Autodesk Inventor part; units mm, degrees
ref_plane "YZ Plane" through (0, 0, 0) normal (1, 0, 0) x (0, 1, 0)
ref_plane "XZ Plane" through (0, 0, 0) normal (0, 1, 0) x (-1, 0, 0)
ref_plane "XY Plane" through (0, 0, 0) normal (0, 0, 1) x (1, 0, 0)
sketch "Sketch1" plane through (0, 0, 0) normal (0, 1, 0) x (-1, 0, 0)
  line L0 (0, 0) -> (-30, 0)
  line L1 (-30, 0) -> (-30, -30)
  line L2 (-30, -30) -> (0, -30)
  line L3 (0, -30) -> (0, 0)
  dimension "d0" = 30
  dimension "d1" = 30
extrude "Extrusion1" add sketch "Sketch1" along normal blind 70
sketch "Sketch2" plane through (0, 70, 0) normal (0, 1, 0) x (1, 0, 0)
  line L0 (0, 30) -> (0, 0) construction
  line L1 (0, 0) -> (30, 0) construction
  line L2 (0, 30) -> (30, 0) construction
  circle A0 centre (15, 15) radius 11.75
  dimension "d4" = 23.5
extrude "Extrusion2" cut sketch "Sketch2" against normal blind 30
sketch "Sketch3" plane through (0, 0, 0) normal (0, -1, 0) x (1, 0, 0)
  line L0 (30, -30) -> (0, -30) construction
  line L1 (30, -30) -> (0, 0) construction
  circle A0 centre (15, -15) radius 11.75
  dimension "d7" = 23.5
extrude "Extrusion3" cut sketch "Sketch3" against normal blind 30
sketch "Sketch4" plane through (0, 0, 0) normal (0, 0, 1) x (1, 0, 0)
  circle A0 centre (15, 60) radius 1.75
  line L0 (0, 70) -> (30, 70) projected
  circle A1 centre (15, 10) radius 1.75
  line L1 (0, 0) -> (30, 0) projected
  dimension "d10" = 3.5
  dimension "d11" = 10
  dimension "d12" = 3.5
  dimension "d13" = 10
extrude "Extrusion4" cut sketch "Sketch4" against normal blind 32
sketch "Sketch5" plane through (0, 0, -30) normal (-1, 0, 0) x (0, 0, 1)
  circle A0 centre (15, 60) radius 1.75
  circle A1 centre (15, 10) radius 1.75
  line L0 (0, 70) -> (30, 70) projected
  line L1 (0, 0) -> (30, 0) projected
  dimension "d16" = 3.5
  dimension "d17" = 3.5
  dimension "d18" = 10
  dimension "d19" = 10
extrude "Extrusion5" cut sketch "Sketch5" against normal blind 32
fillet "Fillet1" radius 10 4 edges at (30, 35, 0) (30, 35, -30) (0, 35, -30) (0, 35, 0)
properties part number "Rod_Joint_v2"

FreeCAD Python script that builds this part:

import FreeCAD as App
import Part
import Sketcher
Q = App.Units.Quantity


def edges_at(feature, points):
    """Names of the edges that pass closest to the given points."""
    edges = feature.Shape.Edges
    near = lambda p: min(range(len(edges)), key=lambda i: edges[i].distToShape(Part.Vertex(*p))[0])
    return sorted({f"Edge{near(p) + 1}" for p in points})

doc = App.newDocument("Part")
body = doc.addObject("PartDesign::Body", "Body")

sketch1 = body.newObject("Sketcher::SketchObject", "Sketch")
sketch1.AttachmentSupport = (doc.getObject("XZ_Plane"), [""])
sketch1.MapMode = "FlatFace"
sketch1.addGeometry(Part.LineSegment(App.Vector(0, -30, 0), App.Vector(0, 0, 0)), False)
sketch1.addGeometry(Part.LineSegment(App.Vector(0, 0, 0), App.Vector(30, 0, 0)), False)
sketch1.addGeometry(Part.LineSegment(App.Vector(30, 0, 0), App.Vector(30, -30, 0)), False)
sketch1.addGeometry(Part.LineSegment(App.Vector(30, -30, 0), App.Vector(0, -30, 0)), False)
sketch1.addConstraint(Sketcher.Constraint("Coincident", 0, 2, 1, 1))
sketch1.addConstraint(Sketcher.Constraint("Coincident", 1, 2, 2, 1))
sketch1.addConstraint(Sketcher.Constraint("Coincident", 2, 2, 3, 1))
sketch1.addConstraint(Sketcher.Constraint("Coincident", 3, 2, 0, 1))
sketch1.addConstraint(Sketcher.Constraint("Vertical", 0))
sketch1.addConstraint(Sketcher.Constraint("Horizontal", 1))
sketch1.addConstraint(Sketcher.Constraint("Vertical", 2))
sketch1.addConstraint(Sketcher.Constraint("Horizontal", 3))
sketch1.addConstraint(Sketcher.Constraint("Coincident", 0, 2, -1, 1))
sketch1.addConstraint(Sketcher.Constraint("Equal", 3, 0))
sketch1.addConstraint(Sketcher.Constraint("DistanceX", 1, 1, 1, 2, Q("30 mm")))
pad1 = body.newObject("PartDesign::Pad", "Pad")
pad1.Profile = sketch1
pad1.Length = 70
pad1.Reversed = True

sketch2 = body.newObject("Sketcher::SketchObject", "Sketch001")
sketch2.AttachmentSupport = (doc.getObject("XZ_Plane"), [""])
sketch2.MapMode = "FlatFace"
sketch2.AttachmentOffset = App.Placement(App.Vector(0, 0, -70), App.Rotation())
sketch2.addGeometry(Part.Circle(App.Vector(15, -15, 0), App.Vector(0, 0, 1), 12), False)
sketch2.addConstraint(Sketcher.Constraint("Diameter", 0, Q("23.5 mm")))
sketch2.addConstraint(Sketcher.Constraint("DistanceX", -1, 1, 0, 3, Q("15 mm")))
sketch2.addConstraint(Sketcher.Constraint("DistanceY", 0, 3, -1, 1, Q("15 mm")))
pocket1 = body.newObject("PartDesign::Pocket", "Pocket")
pocket1.Profile = sketch2
pocket1.Length = 30
pocket1.Reversed = True

sketch3 = body.newObject("Sketcher::SketchObject", "Sketch002")
sketch3.AttachmentSupport = (doc.getObject("XZ_Plane"), [""])
sketch3.MapMode = "FlatFace"
sketch3.addGeometry(Part.Circle(App.Vector(15, -15, 0), App.Vector(0, 0, 1), 12), False)
sketch3.addConstraint(Sketcher.Constraint("Diameter", 0, Q("23.5 mm")))
sketch3.addConstraint(Sketcher.Constraint("DistanceX", -1, 1, 0, 3, Q("15 mm")))
sketch3.addConstraint(Sketcher.Constraint("DistanceY", 0, 3, -1, 1, Q("15 mm")))
pocket2 = body.newObject("PartDesign::Pocket", "Pocket001")
pocket2.Profile = sketch3
pocket2.Length = 30

sketch4 = body.newObject("Sketcher::SketchObject", "Sketch003")
sketch4.AttachmentSupport = (doc.getObject("XY_Plane"), [""])
sketch4.MapMode = "FlatFace"
sketch4.addGeometry(Part.Circle(App.Vector(15, 60, 0), App.Vector(0, 0, 1), 1.8), False)
sketch4.addGeometry(Part.Circle(App.Vector(15, 10, 0), App.Vector(0, 0, 1), 1.8), False)
sketch4.addConstraint(Sketcher.Constraint("Equal", 0, 1))
sketch4.addConstraint(Sketcher.Constraint("Vertical", 0, 3, 1, 3))
sketch4.addConstraint(Sketcher.Constraint("Diameter", 0, Q("3.5 mm")))
sketch4.addConstraint(Sketcher.Constraint("DistanceY", -1, 1, 1, 3, Q("10 mm")))
sketch4.addConstraint(Sketcher.Constraint("DistanceX", -1, 1, 0, 3, Q("15 mm")))
sketch4.addConstraint(Sketcher.Constraint("DistanceY", -1, 1, 0, 3, Q("60 mm")))
pocket3 = body.newObject("PartDesign::Pocket", "Pocket002")
pocket3.Profile = sketch4
pocket3.Length = 32

sketch5 = body.newObject("Sketcher::SketchObject", "Sketch004")
sketch5.AttachmentSupport = (doc.getObject("YZ_Plane"), [""])
sketch5.MapMode = "FlatFace"
sketch5.addGeometry(Part.Circle(App.Vector(60, -15, 0), App.Vector(0, 0, 1), 1.8), False)
sketch5.addGeometry(Part.Circle(App.Vector(10, -15, 0), App.Vector(0, 0, 1), 1.8), False)
sketch5.addConstraint(Sketcher.Constraint("Equal", 0, 1))
sketch5.addConstraint(Sketcher.Constraint("Horizontal", 0, 3, 1, 3))
sketch5.addConstraint(Sketcher.Constraint("Diameter", 0, Q("3.5 mm")))
sketch5.addConstraint(Sketcher.Constraint("DistanceX", -1, 1, 1, 3, Q("10 mm")))
sketch5.addConstraint(Sketcher.Constraint("DistanceX", -1, 1, 0, 3, Q("60 mm")))
sketch5.addConstraint(Sketcher.Constraint("DistanceY", 0, 3, -1, 1, Q("15 mm")))
pocket4 = body.newObject("PartDesign::Pocket", "Pocket003")
pocket4.Profile = sketch5
pocket4.Length = 32
pocket4.Reversed = True
doc.recompute()

fillet = body.newObject("PartDesign::Fillet", "Fillet")
fillet.Base = (pocket4, edges_at(pocket4, [
    (30, 35, 0),
    (30, 35, -30),
    (0, 35, -30),
    (0, 35, 0),
]))
fillet.Radius = 10

doc.recompute()
